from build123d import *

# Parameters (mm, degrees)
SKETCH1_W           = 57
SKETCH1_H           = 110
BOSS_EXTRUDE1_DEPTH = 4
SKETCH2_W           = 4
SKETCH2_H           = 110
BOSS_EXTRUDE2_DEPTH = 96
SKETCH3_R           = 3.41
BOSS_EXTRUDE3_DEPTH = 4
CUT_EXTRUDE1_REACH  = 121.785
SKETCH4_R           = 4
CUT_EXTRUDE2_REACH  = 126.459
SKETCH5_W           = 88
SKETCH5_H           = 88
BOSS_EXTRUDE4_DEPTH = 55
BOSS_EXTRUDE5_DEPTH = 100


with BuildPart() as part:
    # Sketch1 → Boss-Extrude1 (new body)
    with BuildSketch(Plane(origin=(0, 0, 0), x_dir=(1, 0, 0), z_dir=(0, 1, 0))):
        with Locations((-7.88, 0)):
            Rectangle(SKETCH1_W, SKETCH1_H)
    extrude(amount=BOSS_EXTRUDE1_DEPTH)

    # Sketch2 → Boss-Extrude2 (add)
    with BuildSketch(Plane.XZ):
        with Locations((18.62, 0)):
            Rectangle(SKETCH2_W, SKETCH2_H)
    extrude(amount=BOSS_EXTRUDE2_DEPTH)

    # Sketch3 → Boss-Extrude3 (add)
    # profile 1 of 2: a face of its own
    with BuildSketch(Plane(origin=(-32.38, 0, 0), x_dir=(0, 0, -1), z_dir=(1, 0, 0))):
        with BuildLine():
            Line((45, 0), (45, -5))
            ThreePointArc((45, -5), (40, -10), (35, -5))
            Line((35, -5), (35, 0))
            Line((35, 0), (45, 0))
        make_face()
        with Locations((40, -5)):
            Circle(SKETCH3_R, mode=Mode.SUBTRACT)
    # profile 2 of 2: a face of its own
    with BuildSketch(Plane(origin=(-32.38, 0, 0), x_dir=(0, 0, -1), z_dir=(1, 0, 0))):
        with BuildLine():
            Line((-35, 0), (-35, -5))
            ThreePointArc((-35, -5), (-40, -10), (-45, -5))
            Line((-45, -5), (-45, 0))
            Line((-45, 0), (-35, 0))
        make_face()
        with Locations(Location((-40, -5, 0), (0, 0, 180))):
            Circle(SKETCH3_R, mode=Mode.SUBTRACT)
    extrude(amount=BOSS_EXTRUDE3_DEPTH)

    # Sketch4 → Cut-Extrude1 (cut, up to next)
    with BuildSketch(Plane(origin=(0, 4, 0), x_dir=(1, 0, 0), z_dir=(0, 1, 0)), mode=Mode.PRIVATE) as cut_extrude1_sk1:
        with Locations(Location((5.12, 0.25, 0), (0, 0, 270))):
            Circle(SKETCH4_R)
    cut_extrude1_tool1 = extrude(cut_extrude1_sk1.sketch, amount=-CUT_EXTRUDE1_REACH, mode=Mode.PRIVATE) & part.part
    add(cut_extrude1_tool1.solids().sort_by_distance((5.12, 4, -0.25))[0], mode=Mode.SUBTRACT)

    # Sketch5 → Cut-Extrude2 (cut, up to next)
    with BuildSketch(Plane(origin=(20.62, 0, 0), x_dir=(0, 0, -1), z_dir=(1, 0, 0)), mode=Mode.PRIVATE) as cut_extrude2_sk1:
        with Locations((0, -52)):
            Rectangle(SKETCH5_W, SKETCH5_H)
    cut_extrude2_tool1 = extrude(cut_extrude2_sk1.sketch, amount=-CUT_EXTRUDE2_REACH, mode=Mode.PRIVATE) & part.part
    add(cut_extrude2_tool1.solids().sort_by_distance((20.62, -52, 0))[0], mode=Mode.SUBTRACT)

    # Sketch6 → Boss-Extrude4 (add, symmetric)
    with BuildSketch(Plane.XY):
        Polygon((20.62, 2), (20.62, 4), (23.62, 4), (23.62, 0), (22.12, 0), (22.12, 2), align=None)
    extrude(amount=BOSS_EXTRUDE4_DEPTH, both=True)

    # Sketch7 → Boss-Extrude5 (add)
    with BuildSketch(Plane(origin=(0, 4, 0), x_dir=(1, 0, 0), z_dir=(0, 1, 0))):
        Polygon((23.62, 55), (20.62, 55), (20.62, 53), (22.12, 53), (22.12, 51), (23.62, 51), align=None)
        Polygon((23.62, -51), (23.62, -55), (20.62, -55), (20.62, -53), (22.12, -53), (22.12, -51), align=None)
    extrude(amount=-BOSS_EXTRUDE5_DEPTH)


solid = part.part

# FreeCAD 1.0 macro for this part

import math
import FreeCAD as App
import Part
import Sketcher
from FreeCAD import Vector

doc = App.newDocument("Part")
body = doc.addObject("PartDesign::Body", "Body")

sketch1 = body.newObject("Sketcher::SketchObject", "Sketch")
sketch1.AttachmentSupport = (doc.getObject("XZ_Plane"), [""])
sketch1.MapMode = "FlatFace"
sketch1.addGeometry(Part.LineSegment(Vector(-36.38, -55, 0), Vector(-36.38, 55, 0)), False)
sketch1.addGeometry(Part.LineSegment(Vector(-36.38, 55, 0), Vector(20.62, 55, 0)), False)
sketch1.addGeometry(Part.LineSegment(Vector(20.62, 55, 0), Vector(20.62, -55, 0)), False)
sketch1.addGeometry(Part.LineSegment(Vector(20.62, -55, 0), Vector(-36.38, -55, 0)), False)
sketch1.addConstraint(Sketcher.Constraint("Coincident", 0, 2, 1, 1))
sketch1.addConstraint(Sketcher.Constraint("Coincident", 1, 2, 2, 1))
sketch1.addConstraint(Sketcher.Constraint("Coincident", 2, 2, 3, 1))
sketch1.addConstraint(Sketcher.Constraint("Coincident", 3, 2, 0, 1))
sketch1.addConstraint(Sketcher.Constraint("Vertical", 0))
sketch1.addConstraint(Sketcher.Constraint("Horizontal", 1))
sketch1.addConstraint(Sketcher.Constraint("Vertical", 2))
sketch1.addConstraint(Sketcher.Constraint("Horizontal", 3))
sketch1.addConstraint(Sketcher.Constraint("DistanceX", 1, 1, 1, 2, 57.0))
sketch1.addConstraint(Sketcher.Constraint("DistanceY", 0, 1, 0, 2, 110.0))
sketch1.addConstraint(Sketcher.Constraint("DistanceY", -1, 1, 0, 2, 55.0))
sketch1.addConstraint(Sketcher.Constraint("DistanceX", 0, 2, -1, 1, 36.38))
pad1 = body.newObject("PartDesign::Pad", "Pad")
pad1.Profile = sketch1
pad1.Length = 4
pad1.Reversed = True

sketch2 = body.newObject("Sketcher::SketchObject", "Sketch001")
sketch2.AttachmentSupport = (doc.getObject("XZ_Plane"), [""])
sketch2.MapMode = "FlatFace"
sketch2.addGeometry(Part.LineSegment(Vector(16.62, 55, 0), Vector(16.62, -55, 0)), False)
sketch2.addGeometry(Part.LineSegment(Vector(16.62, -55, 0), Vector(20.62, -55, 0)), False)
sketch2.addGeometry(Part.LineSegment(Vector(20.62, -55, 0), Vector(20.62, 55, 0)), False)
sketch2.addGeometry(Part.LineSegment(Vector(20.62, 55, 0), Vector(16.62, 55, 0)), False)
sketch2.addConstraint(Sketcher.Constraint("Coincident", 0, 2, 1, 1))
sketch2.addConstraint(Sketcher.Constraint("Coincident", 1, 2, 2, 1))
sketch2.addConstraint(Sketcher.Constraint("Coincident", 2, 2, 3, 1))
sketch2.addConstraint(Sketcher.Constraint("Coincident", 3, 2, 0, 1))
sketch2.addConstraint(Sketcher.Constraint("Vertical", 0))
sketch2.addConstraint(Sketcher.Constraint("Horizontal", 1))
sketch2.addConstraint(Sketcher.Constraint("Vertical", 2))
sketch2.addConstraint(Sketcher.Constraint("Horizontal", 3))
sketch2.addConstraint(Sketcher.Constraint("DistanceX", 1, 1, 1, 2, 4.0))
sketch2.addConstraint(Sketcher.Constraint("DistanceY", 0, 2, 0, 1, 110.0))
sketch2.addConstraint(Sketcher.Constraint("DistanceY", 0, 2, -1, 1, 55.0))
sketch2.addConstraint(Sketcher.Constraint("DistanceX", -1, 1, 0, 2, 16.62))
pad2 = body.newObject("PartDesign::Pad", "Pad001")
pad2.Profile = sketch2
pad2.Length = 96

sketch3 = body.newObject("Sketcher::SketchObject", "Sketch002")
sketch3.AttachmentSupport = (doc.getObject("YZ_Plane"), [""])
sketch3.MapMode = "FlatFace"
sketch3.AttachmentOffset = App.Placement(Vector(0, 0, -32.38), App.Rotation())
sketch3.addGeometry(Part.LineSegment(Vector(-5, -45, 0), Vector(0, -45, 0)), False)
sketch3.addGeometry(Part.LineSegment(Vector(0, -45, 0), Vector(0, -35, 0)), False)
sketch3.addGeometry(Part.LineSegment(Vector(0, -35, 0), Vector(-5, -35, 0)), False)
sketch3.addGeometry(Part.ArcOfCircle(Part.Circle(Vector(-5, -40, 0), Vector(0, 0, 1), 5), math.radians(90), math.radians(270)), False)
sketch3.addGeometry(Part.Circle(Vector(-5, -40, 0), Vector(0, 0, 1), 3.41), False)
sketch3.addGeometry(Part.LineSegment(Vector(-5, 35, 0), Vector(0, 35, 0)), False)
sketch3.addGeometry(Part.LineSegment(Vector(0, 35, 0), Vector(0, 45, 0)), False)
sketch3.addGeometry(Part.LineSegment(Vector(0, 45, 0), Vector(-5, 45, 0)), False)
sketch3.addGeometry(Part.ArcOfCircle(Part.Circle(Vector(-5, 40, 0), Vector(0, 0, 1), 5), math.radians(90), math.radians(270)), False)
sketch3.addGeometry(Part.Circle(Vector(-5, 40, 0), Vector(0, 0, 1), 3.41), False)
sketch3.addConstraint(Sketcher.Constraint("Coincident", 0, 2, 1, 1))
sketch3.addConstraint(Sketcher.Constraint("Coincident", 1, 2, 2, 1))
sketch3.addConstraint(Sketcher.Constraint("Tangent", 2, 2, 3, 1))
sketch3.addConstraint(Sketcher.Constraint("Tangent", 3, 2, 0, 1))
sketch3.addConstraint(Sketcher.Constraint("Coincident", 5, 2, 6, 1))
sketch3.addConstraint(Sketcher.Constraint("Coincident", 6, 2, 7, 1))
sketch3.addConstraint(Sketcher.Constraint("Tangent", 7, 2, 8, 1))
sketch3.addConstraint(Sketcher.Constraint("Tangent", 8, 2, 5, 1))
sketch3.addConstraint(Sketcher.Constraint("Horizontal", 0))
sketch3.addConstraint(Sketcher.Constraint("Vertical", 1))
sketch3.addConstraint(Sketcher.Constraint("Horizontal", 2))
sketch3.addConstraint(Sketcher.Constraint("Horizontal", 5))
sketch3.addConstraint(Sketcher.Constraint("Vertical", 6))
sketch3.addConstraint(Sketcher.Constraint("Horizontal", 7))
sketch3.addConstraint(Sketcher.Constraint("Coincident", 4, 3, 3, 3))
sketch3.addConstraint(Sketcher.Constraint("Coincident", 9, 3, 8, 3))
sketch3.addConstraint(Sketcher.Constraint("Equal", 3, 8))
sketch3.addConstraint(Sketcher.Constraint("Equal", 4, 9))
sketch3.addConstraint(Sketcher.Constraint("Symmetric", 1, 2, 5, 2, -1, 1))
sketch3.addConstraint(Sketcher.Constraint("PointOnObject", 0, 2, -2))
sketch3.addConstraint(Sketcher.Constraint("Vertical", 4, 3, 8, 3))
sketch3.addConstraint(Sketcher.Constraint("Radius", 3, 5.0))
sketch3.addConstraint(Sketcher.Constraint("Diameter", 4, 6.82))
sketch3.addConstraint(Sketcher.Constraint("DistanceX", 0, 1, 0, 2, 5.0))
sketch3.addConstraint(Sketcher.Constraint("DistanceY", 3, 3, -1, 1, 40.0))
pad3 = body.newObject("PartDesign::Pad", "Pad002")
pad3.Profile = sketch3
pad3.Length = 4

sketch4 = body.newObject("Sketcher::SketchObject", "Sketch003")
sketch4.AttachmentSupport = (doc.getObject("XZ_Plane"), [""])
sketch4.MapMode = "FlatFace"
sketch4.AttachmentOffset = App.Placement(Vector(0, 0, -4), App.Rotation())
sketch4.addGeometry(Part.Circle(Vector(5.12, -0.25, 0), Vector(0, 0, 1), 4), False)
sketch4.addConstraint(Sketcher.Constraint("Diameter", 0, 8.0))
sketch4.addConstraint(Sketcher.Constraint("DistanceX", -1, 1, 0, 3, 5.12))
sketch4.addConstraint(Sketcher.Constraint("DistanceY", 0, 3, -1, 1, 0.25))
pocket1 = body.newObject("PartDesign::Pocket", "Pocket")
pocket1.Profile = sketch4
pocket1.Type = "UpToFirst"
pocket1.Reversed = True

sketch5 = body.newObject("Sketcher::SketchObject", "Sketch004")
sketch5.AttachmentSupport = (doc.getObject("YZ_Plane"), [""])
sketch5.MapMode = "FlatFace"
sketch5.AttachmentOffset = App.Placement(Vector(0, 0, 20.62), App.Rotation())
sketch5.addGeometry(Part.LineSegment(Vector(-8, 44, 0), Vector(-96, 44, 0)), False)
sketch5.addGeometry(Part.LineSegment(Vector(-96, 44, 0), Vector(-96, -44, 0)), False)
sketch5.addGeometry(Part.LineSegment(Vector(-96, -44, 0), Vector(-8, -44, 0)), False)
sketch5.addGeometry(Part.LineSegment(Vector(-8, -44, 0), Vector(-8, 44, 0)), False)
sketch5.addConstraint(Sketcher.Constraint("Coincident", 0, 2, 1, 1))
sketch5.addConstraint(Sketcher.Constraint("Coincident", 1, 2, 2, 1))
sketch5.addConstraint(Sketcher.Constraint("Coincident", 2, 2, 3, 1))
sketch5.addConstraint(Sketcher.Constraint("Coincident", 3, 2, 0, 1))
sketch5.addConstraint(Sketcher.Constraint("Horizontal", 0))
sketch5.addConstraint(Sketcher.Constraint("Vertical", 1))
sketch5.addConstraint(Sketcher.Constraint("Horizontal", 2))
sketch5.addConstraint(Sketcher.Constraint("Vertical", 3))
sketch5.addConstraint(Sketcher.Constraint("Equal", 2, 1))
sketch5.addConstraint(Sketcher.Constraint("DistanceX", 0, 2, 0, 1, 88.0))
sketch5.addConstraint(Sketcher.Constraint("DistanceX", 0, 2, -1, 1, 96.0))
sketch5.addConstraint(Sketcher.Constraint("DistanceY", -1, 1, 0, 2, 44.0))
pocket2 = body.newObject("PartDesign::Pocket", "Pocket001")
pocket2.Profile = sketch5
pocket2.Type = "UpToFirst"

sketch6 = body.newObject("Sketcher::SketchObject", "Sketch005")
sketch6.AttachmentSupport = (doc.getObject("XY_Plane"), [""])
sketch6.MapMode = "FlatFace"
sketch6.addGeometry(Part.LineSegment(Vector(20.62, 4, 0), Vector(20.62, 2, 0)), False)
sketch6.addGeometry(Part.LineSegment(Vector(20.62, 2, 0), Vector(22.12, 2, 0)), False)
sketch6.addGeometry(Part.LineSegment(Vector(22.12, 2, 0), Vector(22.12, 0, 0)), False)
sketch6.addGeometry(Part.LineSegment(Vector(22.12, 0, 0), Vector(23.62, 0, 0)), False)
sketch6.addGeometry(Part.LineSegment(Vector(23.62, 0, 0), Vector(23.62, 4, 0)), False)
sketch6.addGeometry(Part.LineSegment(Vector(23.62, 4, 0), Vector(20.62, 4, 0)), False)
sketch6.addConstraint(Sketcher.Constraint("Coincident", 0, 2, 1, 1))
sketch6.addConstraint(Sketcher.Constraint("Coincident", 1, 2, 2, 1))
sketch6.addConstraint(Sketcher.Constraint("Coincident", 2, 2, 3, 1))
sketch6.addConstraint(Sketcher.Constraint("Coincident", 3, 2, 4, 1))
sketch6.addConstraint(Sketcher.Constraint("Coincident", 4, 2, 5, 1))
sketch6.addConstraint(Sketcher.Constraint("Coincident", 5, 2, 0, 1))
sketch6.addConstraint(Sketcher.Constraint("Vertical", 0))
sketch6.addConstraint(Sketcher.Constraint("Horizontal", 1))
sketch6.addConstraint(Sketcher.Constraint("Vertical", 2))
sketch6.addConstraint(Sketcher.Constraint("Horizontal", 3))
sketch6.addConstraint(Sketcher.Constraint("Vertical", 4))
sketch6.addConstraint(Sketcher.Constraint("Horizontal", 5))
sketch6.addConstraint(Sketcher.Constraint("PointOnObject", 2, 2, -1))
sketch6.addConstraint(Sketcher.Constraint("Equal", 1, 3))
sketch6.addConstraint(Sketcher.Constraint("Equal", 0, 2))
sketch6.addConstraint(Sketcher.Constraint("DistanceX", 5, 2, 5, 1, 3.0))
sketch6.addConstraint(Sketcher.Constraint("DistanceY", 0, 2, 0, 1, 2.0))
sketch6.addConstraint(Sketcher.Constraint("DistanceX", -1, 1, 0, 2, 20.62))
pad4 = body.newObject("PartDesign::Pad", "Pad003")
pad4.Profile = sketch6
pad4.Length = 110
pad4.Midplane = True

sketch7 = body.newObject("Sketcher::SketchObject", "Sketch006")
sketch7.AttachmentSupport = (doc.getObject("XZ_Plane"), [""])
sketch7.MapMode = "FlatFace"
sketch7.AttachmentOffset = App.Placement(Vector(0, 0, -4), App.Rotation())
sketch7.addGeometry(Part.LineSegment(Vector(23.62, -55, 0), Vector(20.62, -55, 0)), False)
sketch7.addGeometry(Part.LineSegment(Vector(20.62, -55, 0), Vector(20.62, -53, 0)), False)
sketch7.addGeometry(Part.LineSegment(Vector(20.62, -53, 0), Vector(22.12, -53, 0)), False)
sketch7.addGeometry(Part.LineSegment(Vector(22.12, -53, 0), Vector(22.12, -51, 0)), False)
sketch7.addGeometry(Part.LineSegment(Vector(22.12, -51, 0), Vector(23.62, -51, 0)), False)
sketch7.addGeometry(Part.LineSegment(Vector(23.62, -51, 0), Vector(23.62, -55, 0)), False)
sketch7.addGeometry(Part.LineSegment(Vector(23.62, 55, 0), Vector(23.62, 51, 0)), False)
sketch7.addGeometry(Part.LineSegment(Vector(23.62, 51, 0), Vector(22.12, 51, 0)), False)
sketch7.addGeometry(Part.LineSegment(Vector(22.12, 51, 0), Vector(22.12, 53, 0)), False)
sketch7.addGeometry(Part.LineSegment(Vector(22.12, 53, 0), Vector(20.62, 53, 0)), False)
sketch7.addGeometry(Part.LineSegment(Vector(20.62, 53, 0), Vector(20.62, 55, 0)), False)
sketch7.addGeometry(Part.LineSegment(Vector(20.62, 55, 0), Vector(23.62, 55, 0)), False)
sketch7.addConstraint(Sketcher.Constraint("Coincident", 0, 2, 1, 1))
sketch7.addConstraint(Sketcher.Constraint("Coincident", 1, 2, 2, 1))
sketch7.addConstraint(Sketcher.Constraint("Coincident", 2, 2, 3, 1))
sketch7.addConstraint(Sketcher.Constraint("Coincident", 3, 2, 4, 1))
sketch7.addConstraint(Sketcher.Constraint("Coincident", 4, 2, 5, 1))
sketch7.addConstraint(Sketcher.Constraint("Coincident", 5, 2, 0, 1))
sketch7.addConstraint(Sketcher.Constraint("Coincident", 6, 2, 7, 1))
sketch7.addConstraint(Sketcher.Constraint("Coincident", 7, 2, 8, 1))
sketch7.addConstraint(Sketcher.Constraint("Coincident", 8, 2, 9, 1))
sketch7.addConstraint(Sketcher.Constraint("Coincident", 9, 2, 10, 1))
sketch7.addConstraint(Sketcher.Constraint("Coincident", 10, 2, 11, 1))
sketch7.addConstraint(Sketcher.Constraint("Coincident", 11, 2, 6, 1))
sketch7.addConstraint(Sketcher.Constraint("Horizontal", 0))
sketch7.addConstraint(Sketcher.Constraint("Vertical", 1))
sketch7.addConstraint(Sketcher.Constraint("Horizontal", 2))
sketch7.addConstraint(Sketcher.Constraint("Vertical", 3))
sketch7.addConstraint(Sketcher.Constraint("Horizontal", 4))
sketch7.addConstraint(Sketcher.Constraint("Vertical", 5))
sketch7.addConstraint(Sketcher.Constraint("Vertical", 6))
sketch7.addConstraint(Sketcher.Constraint("Horizontal", 7))
sketch7.addConstraint(Sketcher.Constraint("Vertical", 8))
sketch7.addConstraint(Sketcher.Constraint("Horizontal", 9))
sketch7.addConstraint(Sketcher.Constraint("Vertical", 10))
sketch7.addConstraint(Sketcher.Constraint("Horizontal", 11))
sketch7.addConstraint(Sketcher.Constraint("Symmetric", 4, 2, 6, 2, -1))
sketch7.addConstraint(Sketcher.Constraint("Symmetric", 2, 2, 8, 2, -1))
sketch7.addConstraint(Sketcher.Constraint("Symmetric", 0, 2, 10, 2, -1))
sketch7.addConstraint(Sketcher.Constraint("Equal", 2, 4))
sketch7.addConstraint(Sketcher.Constraint("Equal", 1, 3))
sketch7.addConstraint(Sketcher.Constraint("DistanceX", 0, 2, 0, 1, 3.0))
sketch7.addConstraint(Sketcher.Constraint("DistanceY", 1, 1, 1, 2, 2.0))
sketch7.addConstraint(Sketcher.Constraint("DistanceY", 0, 2, -1, 1, 55.0))
sketch7.addConstraint(Sketcher.Constraint("DistanceX", -1, 1, 0, 2, 20.62))
pad5 = body.newObject("PartDesign::Pad", "Pad004")
pad5.Profile = sketch7
pad5.Length = 100

doc.recompute()
